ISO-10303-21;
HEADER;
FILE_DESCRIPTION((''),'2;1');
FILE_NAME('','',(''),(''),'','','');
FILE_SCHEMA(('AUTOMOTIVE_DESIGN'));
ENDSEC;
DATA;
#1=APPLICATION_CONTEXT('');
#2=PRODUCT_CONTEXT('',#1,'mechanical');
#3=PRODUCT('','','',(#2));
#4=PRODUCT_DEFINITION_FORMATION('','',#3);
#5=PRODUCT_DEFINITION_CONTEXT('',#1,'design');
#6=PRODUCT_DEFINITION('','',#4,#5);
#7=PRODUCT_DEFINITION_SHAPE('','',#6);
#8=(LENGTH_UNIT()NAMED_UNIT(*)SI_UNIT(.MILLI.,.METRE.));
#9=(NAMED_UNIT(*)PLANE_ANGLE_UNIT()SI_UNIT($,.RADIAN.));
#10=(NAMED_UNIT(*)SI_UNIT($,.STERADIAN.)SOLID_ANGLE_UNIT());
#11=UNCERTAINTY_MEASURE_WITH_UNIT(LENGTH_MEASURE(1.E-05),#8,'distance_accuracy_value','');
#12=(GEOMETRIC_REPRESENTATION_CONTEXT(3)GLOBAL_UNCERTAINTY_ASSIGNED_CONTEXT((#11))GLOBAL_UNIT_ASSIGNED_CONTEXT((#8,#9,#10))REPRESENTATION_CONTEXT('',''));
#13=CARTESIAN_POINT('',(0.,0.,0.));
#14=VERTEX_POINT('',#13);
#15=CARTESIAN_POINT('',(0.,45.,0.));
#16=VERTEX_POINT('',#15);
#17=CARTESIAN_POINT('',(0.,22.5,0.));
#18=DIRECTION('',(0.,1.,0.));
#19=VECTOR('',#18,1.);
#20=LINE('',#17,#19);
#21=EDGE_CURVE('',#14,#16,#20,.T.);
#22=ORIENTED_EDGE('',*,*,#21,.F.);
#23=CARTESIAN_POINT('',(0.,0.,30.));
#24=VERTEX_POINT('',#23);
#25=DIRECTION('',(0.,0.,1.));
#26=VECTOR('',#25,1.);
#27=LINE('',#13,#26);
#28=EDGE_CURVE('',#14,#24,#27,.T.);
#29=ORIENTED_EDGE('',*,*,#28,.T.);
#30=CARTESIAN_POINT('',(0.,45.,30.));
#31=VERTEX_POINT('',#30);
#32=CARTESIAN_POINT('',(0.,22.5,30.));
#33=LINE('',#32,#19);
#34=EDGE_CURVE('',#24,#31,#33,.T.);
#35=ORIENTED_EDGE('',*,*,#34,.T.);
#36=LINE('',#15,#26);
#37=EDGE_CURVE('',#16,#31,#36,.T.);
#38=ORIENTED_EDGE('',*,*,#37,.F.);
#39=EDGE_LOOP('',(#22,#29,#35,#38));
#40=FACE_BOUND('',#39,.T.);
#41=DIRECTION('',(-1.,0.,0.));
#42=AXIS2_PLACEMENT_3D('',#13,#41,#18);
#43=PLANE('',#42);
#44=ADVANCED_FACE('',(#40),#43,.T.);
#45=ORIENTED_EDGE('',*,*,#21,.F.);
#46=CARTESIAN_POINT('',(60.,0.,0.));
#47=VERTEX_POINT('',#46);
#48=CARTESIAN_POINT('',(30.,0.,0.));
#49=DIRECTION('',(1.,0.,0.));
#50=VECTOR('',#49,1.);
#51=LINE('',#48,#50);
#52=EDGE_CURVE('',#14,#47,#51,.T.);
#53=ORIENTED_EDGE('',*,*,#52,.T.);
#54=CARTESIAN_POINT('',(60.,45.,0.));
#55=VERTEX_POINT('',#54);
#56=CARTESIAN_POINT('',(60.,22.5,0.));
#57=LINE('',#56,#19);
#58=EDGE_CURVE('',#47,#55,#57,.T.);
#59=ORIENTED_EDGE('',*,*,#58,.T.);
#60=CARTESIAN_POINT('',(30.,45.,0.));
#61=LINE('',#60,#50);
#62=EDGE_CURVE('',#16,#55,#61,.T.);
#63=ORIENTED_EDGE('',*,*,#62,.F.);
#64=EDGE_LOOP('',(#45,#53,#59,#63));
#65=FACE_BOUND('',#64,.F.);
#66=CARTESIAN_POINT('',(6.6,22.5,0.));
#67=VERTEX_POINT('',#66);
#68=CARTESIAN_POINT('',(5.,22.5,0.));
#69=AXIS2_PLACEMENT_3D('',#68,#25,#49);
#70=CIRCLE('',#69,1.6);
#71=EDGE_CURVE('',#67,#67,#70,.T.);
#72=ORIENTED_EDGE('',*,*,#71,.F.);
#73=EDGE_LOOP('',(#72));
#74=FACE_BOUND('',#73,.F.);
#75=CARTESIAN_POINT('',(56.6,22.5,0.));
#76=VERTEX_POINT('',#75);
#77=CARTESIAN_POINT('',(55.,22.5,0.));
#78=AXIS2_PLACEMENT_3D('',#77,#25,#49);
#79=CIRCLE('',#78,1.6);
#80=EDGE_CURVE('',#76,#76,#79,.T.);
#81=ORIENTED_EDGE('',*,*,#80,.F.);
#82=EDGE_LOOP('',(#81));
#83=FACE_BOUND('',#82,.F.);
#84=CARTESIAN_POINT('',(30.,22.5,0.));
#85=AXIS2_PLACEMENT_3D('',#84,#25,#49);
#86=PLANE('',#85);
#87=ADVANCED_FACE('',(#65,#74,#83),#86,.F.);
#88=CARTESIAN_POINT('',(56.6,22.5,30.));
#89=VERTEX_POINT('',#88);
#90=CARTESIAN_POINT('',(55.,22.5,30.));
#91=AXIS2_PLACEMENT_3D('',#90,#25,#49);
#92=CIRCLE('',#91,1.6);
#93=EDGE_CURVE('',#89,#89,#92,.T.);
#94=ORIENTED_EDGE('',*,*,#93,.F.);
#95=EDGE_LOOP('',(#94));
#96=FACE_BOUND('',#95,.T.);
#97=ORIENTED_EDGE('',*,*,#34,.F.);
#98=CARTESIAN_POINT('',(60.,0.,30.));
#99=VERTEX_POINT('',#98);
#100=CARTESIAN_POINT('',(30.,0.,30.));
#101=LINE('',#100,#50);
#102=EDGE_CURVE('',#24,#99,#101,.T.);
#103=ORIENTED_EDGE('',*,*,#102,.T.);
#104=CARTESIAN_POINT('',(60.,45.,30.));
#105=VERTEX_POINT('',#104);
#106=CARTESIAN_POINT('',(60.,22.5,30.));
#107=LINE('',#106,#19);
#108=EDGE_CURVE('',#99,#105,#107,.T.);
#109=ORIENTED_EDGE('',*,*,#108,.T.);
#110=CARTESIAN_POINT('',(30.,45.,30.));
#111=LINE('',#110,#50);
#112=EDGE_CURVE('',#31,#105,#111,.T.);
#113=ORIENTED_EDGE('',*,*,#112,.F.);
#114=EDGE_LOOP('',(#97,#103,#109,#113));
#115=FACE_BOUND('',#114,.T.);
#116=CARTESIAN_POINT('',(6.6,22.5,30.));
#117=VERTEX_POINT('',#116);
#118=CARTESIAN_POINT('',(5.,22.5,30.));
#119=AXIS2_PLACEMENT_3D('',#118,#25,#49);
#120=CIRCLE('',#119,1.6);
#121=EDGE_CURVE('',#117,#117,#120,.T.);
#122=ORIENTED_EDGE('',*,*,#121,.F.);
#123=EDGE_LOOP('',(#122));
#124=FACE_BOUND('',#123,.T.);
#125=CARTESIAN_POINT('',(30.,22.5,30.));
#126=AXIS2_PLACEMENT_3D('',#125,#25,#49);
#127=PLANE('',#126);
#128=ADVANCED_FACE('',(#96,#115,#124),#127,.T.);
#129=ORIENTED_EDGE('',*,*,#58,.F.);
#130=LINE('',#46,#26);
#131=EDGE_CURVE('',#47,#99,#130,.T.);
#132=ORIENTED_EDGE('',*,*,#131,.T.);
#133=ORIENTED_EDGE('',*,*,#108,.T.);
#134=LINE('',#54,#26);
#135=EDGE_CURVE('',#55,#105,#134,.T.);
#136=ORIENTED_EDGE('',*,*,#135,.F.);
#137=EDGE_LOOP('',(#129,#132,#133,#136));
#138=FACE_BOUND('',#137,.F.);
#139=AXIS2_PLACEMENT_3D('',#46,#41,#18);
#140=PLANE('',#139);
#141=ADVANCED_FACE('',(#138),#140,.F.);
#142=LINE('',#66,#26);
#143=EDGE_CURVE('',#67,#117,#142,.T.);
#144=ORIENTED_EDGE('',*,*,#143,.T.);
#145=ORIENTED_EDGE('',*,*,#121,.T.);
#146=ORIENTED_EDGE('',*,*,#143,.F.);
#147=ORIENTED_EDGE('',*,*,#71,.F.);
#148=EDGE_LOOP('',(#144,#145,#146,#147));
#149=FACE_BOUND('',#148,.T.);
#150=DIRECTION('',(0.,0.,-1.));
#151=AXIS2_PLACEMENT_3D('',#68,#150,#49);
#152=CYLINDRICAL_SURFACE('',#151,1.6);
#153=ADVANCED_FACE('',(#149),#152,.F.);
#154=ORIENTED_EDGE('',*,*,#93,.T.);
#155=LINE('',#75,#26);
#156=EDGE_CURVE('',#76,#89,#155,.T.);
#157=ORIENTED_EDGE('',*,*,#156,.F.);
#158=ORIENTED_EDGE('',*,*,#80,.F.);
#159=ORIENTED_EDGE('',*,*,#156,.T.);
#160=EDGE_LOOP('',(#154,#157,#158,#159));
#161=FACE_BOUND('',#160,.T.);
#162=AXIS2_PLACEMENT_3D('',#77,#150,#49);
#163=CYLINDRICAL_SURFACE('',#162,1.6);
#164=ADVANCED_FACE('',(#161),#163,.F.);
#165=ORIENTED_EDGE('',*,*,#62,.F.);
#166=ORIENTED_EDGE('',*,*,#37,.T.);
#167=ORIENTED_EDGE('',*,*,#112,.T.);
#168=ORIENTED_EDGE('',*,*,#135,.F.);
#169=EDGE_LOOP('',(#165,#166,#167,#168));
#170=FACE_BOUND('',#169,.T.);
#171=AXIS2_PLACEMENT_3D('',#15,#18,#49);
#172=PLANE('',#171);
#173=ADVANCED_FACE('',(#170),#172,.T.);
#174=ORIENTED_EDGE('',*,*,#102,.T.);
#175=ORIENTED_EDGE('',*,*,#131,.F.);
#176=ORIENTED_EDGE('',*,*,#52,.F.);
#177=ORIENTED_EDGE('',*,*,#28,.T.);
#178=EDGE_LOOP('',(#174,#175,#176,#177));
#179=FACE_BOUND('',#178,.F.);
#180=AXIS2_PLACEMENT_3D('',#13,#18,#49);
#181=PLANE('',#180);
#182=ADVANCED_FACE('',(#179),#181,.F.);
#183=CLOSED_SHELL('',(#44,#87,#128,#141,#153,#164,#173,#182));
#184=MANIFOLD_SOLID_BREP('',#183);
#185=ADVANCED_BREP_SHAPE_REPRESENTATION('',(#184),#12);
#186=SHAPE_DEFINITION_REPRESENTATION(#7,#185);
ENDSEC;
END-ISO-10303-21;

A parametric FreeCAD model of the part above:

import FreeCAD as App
import Part
import Sketcher

V = App.Vector
Q = App.Units.Quantity


def add_polygon(sketch, points):
    """Adds a closed chain of lines whose ends are joined by coincident constraints."""
    first, n = sketch.GeometryCount, len(points)
    for a, b in zip(points, points[1:] + points[:1]):
        sketch.addGeometry(Part.LineSegment(App.Vector(*a, 0), App.Vector(*b, 0)), False)
    for i in range(n):
        sketch.addConstraint(Sketcher.Constraint("Coincident", first + i, 2, first + (i + 1) % n, 1))

doc = App.newDocument("Part")
params = doc.addObject("Spreadsheet::Sheet", "Params")
for row, (alias, value) in enumerate([
    ("sketch1_diameter", "3.2 mm"),
    ("sketch1_width", "60 mm"),
    ("sketch1_height", "45 mm"),
    ("pad1_length", "30 mm"),
], start=1):
    params.set(f"A{row}", alias)
    params.set(f"B{row}", "=" + value)
    params.setAlias(f"B{row}", alias)

body = doc.addObject("PartDesign::Body", "Body")

# Sketch on XY plane
sketch1 = body.newObject("Sketcher::SketchObject", "Sketch")
sketch1.AttachmentSupport = (doc.getObject("XY_Plane"), [""])
sketch1.MapMode = "FlatFace"
add_polygon(sketch1, [(0, 45), (0, 0), (60, 0), (60, 45)])  # lines 0-3
sketch1.addGeometry(Part.Circle(V(5, 22.5, 0), V(0, 0, 1), 1.6), False)  # 4
sketch1.addGeometry(Part.Circle(V(55, 22.5, 0), V(0, 0, 1), 1.6), False)  # 5
sketch1.addConstraint([
    Sketcher.Constraint("Vertical", 0),
    Sketcher.Constraint("Horizontal", 1),
    Sketcher.Constraint("Vertical", 2),
    Sketcher.Constraint("Horizontal", 3),
    Sketcher.Constraint("Coincident", 0, 2, -1, 1),
    Sketcher.Constraint("Equal", 4, 5),
    Sketcher.Constraint("Horizontal", 4, 3, 5, 3),
    Sketcher.Constraint("Diameter", 4, Q("3.2 mm")),
    Sketcher.Constraint("DistanceX", 1, 1, 1, 2, Q("60 mm")),
    Sketcher.Constraint("DistanceY", 0, 2, 0, 1, Q("45 mm")),
    Sketcher.Constraint("DistanceX", -1, 1, 4, 3, Q("5 mm")),
    Sketcher.Constraint("DistanceX", -1, 1, 5, 3, Q("55 mm")),
    Sketcher.Constraint("DistanceY", -1, 1, 4, 3, Q("22.5 mm")),
])
sketch1.setExpression("Constraints[11]", "Params.sketch1_diameter")
sketch1.setExpression("Constraints[12]", "Params.sketch1_width")
sketch1.setExpression("Constraints[13]", "Params.sketch1_height")
pad1 = body.newObject("PartDesign::Pad", "Pad")
pad1.Profile = sketch1
pad1.setExpression("Length", "Params.pad1_length")

doc.recompute()
